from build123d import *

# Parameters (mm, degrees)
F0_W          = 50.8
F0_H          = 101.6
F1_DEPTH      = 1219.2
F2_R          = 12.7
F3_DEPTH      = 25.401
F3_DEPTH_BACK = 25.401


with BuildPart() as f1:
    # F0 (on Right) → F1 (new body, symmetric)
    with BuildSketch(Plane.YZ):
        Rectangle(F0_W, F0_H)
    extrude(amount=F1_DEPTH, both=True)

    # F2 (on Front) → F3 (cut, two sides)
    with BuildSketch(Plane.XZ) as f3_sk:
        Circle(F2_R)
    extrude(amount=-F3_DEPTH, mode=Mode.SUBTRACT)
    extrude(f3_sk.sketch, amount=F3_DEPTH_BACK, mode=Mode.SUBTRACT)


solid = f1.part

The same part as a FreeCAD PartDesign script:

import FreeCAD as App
import Part
import Sketcher

V = App.Vector
Q = App.Units.Quantity

doc = App.newDocument("Part")
body = doc.addObject("PartDesign::Body", "Body")

sketch1 = body.newObject("Sketcher::SketchObject", "Sketch")
sketch1.AttachmentSupport = (doc.getObject("YZ_Plane"), [""])
sketch1.MapMode = "FlatFace"
sketch1.addGeometry(Part.LineSegment(V(-25, 51, 0), V(-25, -51, 0)), False)
sketch1.addGeometry(Part.LineSegment(V(-25, -51, 0), V(25, -51, 0)), False)
sketch1.addGeometry(Part.LineSegment(V(25, -51, 0), V(25, 51, 0)), False)
sketch1.addGeometry(Part.LineSegment(V(25, 51, 0), V(-25, 51, 0)), False)
sketch1.addConstraint(Sketcher.Constraint("Coincident", 0, 2, 1, 1))
sketch1.addConstraint(Sketcher.Constraint("Coincident", 1, 2, 2, 1))
sketch1.addConstraint(Sketcher.Constraint("Coincident", 2, 2, 3, 1))
sketch1.addConstraint(Sketcher.Constraint("Coincident", 3, 2, 0, 1))
sketch1.addConstraint(Sketcher.Constraint("Vertical", 0))
sketch1.addConstraint(Sketcher.Constraint("Horizontal", 1))
sketch1.addConstraint(Sketcher.Constraint("Vertical", 2))
sketch1.addConstraint(Sketcher.Constraint("Horizontal", 3))
sketch1.addConstraint(Sketcher.Constraint("Symmetric", 0, 2, 2, 2, -1, 1))
sketch1.addConstraint(Sketcher.Constraint("DistanceX", 1, 1, 1, 2, Q("2 in")))
sketch1.addConstraint(Sketcher.Constraint("DistanceY", 0, 2, 0, 1, Q("4 in")))
pad1 = body.newObject("PartDesign::Pad", "Pad")
pad1.Profile = sketch1
pad1.Length = Q("96 in")
pad1.Midplane = True

sketch2 = body.newObject("Sketcher::SketchObject", "Sketch001")
sketch2.AttachmentSupport = (doc.getObject("XZ_Plane"), [""])
sketch2.MapMode = "FlatFace"
sketch2.addGeometry(Part.Circle(V(0, 0, 0), V(0, 0, 1), 13), False)
sketch2.addConstraint(Sketcher.Constraint("Coincident", 0, 3, -1, 1))
sketch2.addConstraint(Sketcher.Constraint("Diameter", 0, Q("1 in")))
pocket1 = body.newObject("PartDesign::Pocket", "Pocket")
pocket1.Profile = sketch2
pocket1.Type = "ThroughAll"
pocket1.Midplane = True

doc.recompute()
